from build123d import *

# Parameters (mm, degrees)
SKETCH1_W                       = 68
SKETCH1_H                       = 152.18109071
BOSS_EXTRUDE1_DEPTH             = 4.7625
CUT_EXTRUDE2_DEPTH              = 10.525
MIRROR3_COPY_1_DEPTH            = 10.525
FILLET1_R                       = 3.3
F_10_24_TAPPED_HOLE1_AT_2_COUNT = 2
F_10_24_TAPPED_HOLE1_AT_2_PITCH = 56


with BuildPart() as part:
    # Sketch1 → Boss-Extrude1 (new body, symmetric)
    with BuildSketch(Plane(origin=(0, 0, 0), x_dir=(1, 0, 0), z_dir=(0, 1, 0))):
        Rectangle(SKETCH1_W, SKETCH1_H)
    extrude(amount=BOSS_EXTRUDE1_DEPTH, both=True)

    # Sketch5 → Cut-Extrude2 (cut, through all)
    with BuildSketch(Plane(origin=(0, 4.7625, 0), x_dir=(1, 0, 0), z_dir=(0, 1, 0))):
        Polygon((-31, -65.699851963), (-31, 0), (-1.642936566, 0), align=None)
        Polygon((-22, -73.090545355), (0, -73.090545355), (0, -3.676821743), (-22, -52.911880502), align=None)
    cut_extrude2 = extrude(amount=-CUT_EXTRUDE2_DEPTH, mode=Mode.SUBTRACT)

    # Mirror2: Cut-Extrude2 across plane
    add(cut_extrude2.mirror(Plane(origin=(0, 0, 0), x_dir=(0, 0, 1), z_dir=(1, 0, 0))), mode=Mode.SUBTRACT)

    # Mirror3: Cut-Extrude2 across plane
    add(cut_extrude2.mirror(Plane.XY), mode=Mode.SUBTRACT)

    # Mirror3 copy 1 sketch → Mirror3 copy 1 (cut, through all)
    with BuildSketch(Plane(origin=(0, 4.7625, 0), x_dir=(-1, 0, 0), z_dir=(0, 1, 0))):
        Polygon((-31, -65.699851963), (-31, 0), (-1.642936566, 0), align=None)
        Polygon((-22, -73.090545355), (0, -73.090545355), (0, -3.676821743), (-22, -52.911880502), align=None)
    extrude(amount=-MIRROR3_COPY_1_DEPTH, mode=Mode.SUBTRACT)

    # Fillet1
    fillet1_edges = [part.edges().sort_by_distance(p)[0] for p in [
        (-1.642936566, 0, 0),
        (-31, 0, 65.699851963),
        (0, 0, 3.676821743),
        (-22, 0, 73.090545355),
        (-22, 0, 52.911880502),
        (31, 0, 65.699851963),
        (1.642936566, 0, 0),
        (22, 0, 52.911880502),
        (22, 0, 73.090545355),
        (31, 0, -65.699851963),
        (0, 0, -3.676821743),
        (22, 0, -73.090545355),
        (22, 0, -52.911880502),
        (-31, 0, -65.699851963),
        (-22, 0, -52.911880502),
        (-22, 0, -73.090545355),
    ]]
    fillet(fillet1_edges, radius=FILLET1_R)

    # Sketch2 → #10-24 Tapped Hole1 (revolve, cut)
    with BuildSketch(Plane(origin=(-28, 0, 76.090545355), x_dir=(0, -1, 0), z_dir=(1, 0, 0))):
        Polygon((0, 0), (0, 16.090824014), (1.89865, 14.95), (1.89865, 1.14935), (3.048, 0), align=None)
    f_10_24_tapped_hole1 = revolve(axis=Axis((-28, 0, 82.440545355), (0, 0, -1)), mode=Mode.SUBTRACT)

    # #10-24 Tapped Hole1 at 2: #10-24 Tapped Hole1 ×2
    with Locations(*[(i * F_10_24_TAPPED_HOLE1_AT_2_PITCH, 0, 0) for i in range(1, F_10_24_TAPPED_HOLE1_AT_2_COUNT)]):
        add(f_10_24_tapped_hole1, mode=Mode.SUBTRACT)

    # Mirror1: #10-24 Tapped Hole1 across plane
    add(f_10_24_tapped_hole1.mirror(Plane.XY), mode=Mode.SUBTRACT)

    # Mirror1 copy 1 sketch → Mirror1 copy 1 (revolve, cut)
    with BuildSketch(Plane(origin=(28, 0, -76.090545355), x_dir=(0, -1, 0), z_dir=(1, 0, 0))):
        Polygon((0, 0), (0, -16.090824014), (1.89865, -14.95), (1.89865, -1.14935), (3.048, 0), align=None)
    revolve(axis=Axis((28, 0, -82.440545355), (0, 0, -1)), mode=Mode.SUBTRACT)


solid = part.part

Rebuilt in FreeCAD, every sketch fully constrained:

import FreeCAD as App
import Part
import Sketcher
from FreeCAD import Vector
Q = App.Units.Quantity


def edges_at(feature, points):
    """Names of the edges that pass closest to the given points."""
    edges = feature.Shape.Edges
    near = lambda p: min(range(len(edges)), key=lambda i: edges[i].distToShape(Part.Vertex(*p))[0])
    return sorted({f"Edge{near(p) + 1}" for p in points})


def add_polygon(sketch, points):
    """Adds a closed chain of lines whose ends are joined by coincident constraints."""
    first, n = sketch.GeometryCount, len(points)
    for a, b in zip(points, points[1:] + points[:1]):
        sketch.addGeometry(Part.LineSegment(App.Vector(*a, 0), App.Vector(*b, 0)), False)
    for i in range(n):
        sketch.addConstraint(Sketcher.Constraint("Coincident", first + i, 2, first + (i + 1) % n, 1))

doc = App.newDocument("Part")
body = doc.addObject("PartDesign::Body", "Body")

sketch1 = body.newObject("Sketcher::SketchObject", "Sketch")
sketch1.AttachmentSupport = (doc.getObject("XZ_Plane"), [""])
sketch1.MapMode = "FlatFace"
add_polygon(sketch1, [(-34, -76), (-34, 76), (34, 76), (34, -76)])
sketch1.addConstraint([
    Sketcher.Constraint("Vertical", 0),
    Sketcher.Constraint("Horizontal", 1),
    Sketcher.Constraint("Vertical", 2),
    Sketcher.Constraint("Horizontal", 3),
    Sketcher.Constraint("Symmetric", 0, 2, 2, 2, -1, 1),
    Sketcher.Constraint("DistanceX", 1, 1, 1, 2, Q("68 mm")),
    Sketcher.Constraint("DistanceY", 0, 1, 0, 2, Q("152.181091 mm")),
])
pad1 = body.newObject("PartDesign::Pad", "Pad")
pad1.Profile = sketch1
pad1.Length = 9.525
pad1.Midplane = True

sketch2 = body.newObject("Sketcher::SketchObject", "Sketch001")
sketch2.AttachmentSupport = (doc.getObject("XZ_Plane"), [""])
sketch2.MapMode = "FlatFace"
sketch2.AttachmentOffset = App.Placement(Vector(0, 0, -4.7625), App.Rotation())
add_polygon(sketch2, [(-31, 0), (-31, 66), (-2, 0)])
add_polygon(sketch2, [(-22, 73), (0, 73), (0, 4), (-22, 53)])
sketch2.addConstraint([
    Sketcher.Constraint("Vertical", 0),
    Sketcher.Constraint("Horizontal", 2),
    Sketcher.Constraint("Horizontal", 3),
    Sketcher.Constraint("Vertical", 4),
    Sketcher.Constraint("Vertical", 6),
    Sketcher.Constraint("PointOnObject", 1, 2, -1),
    Sketcher.Constraint("PointOnObject", 3, 2, -2),
    Sketcher.Constraint("Parallel", 1, 5),
    Sketcher.Constraint("DistanceX", 3, 1, 3, 2, Q("22 mm")),
    Sketcher.Constraint("DistanceX", 0, 2, -1, 1, Q("31 mm")),
    Sketcher.Constraint("DistanceY", 0, 1, 0, 2, Q("65.699852 mm")),
    Sketcher.Constraint("Distance", 1, Q("71.960459 mm")),
    Sketcher.Constraint("DistanceY", 4, 2, 4, 1, Q("69.413724 mm")),
    Sketcher.Constraint("DistanceY", -1, 1, 4, 2, Q("3.676822 mm")),
])
pocket1 = body.newObject("PartDesign::Pocket", "Pocket")
pocket1.Profile = sketch2
pocket1.Type = "ThroughAll"
pocket1.Reversed = True
doc.recompute()

mirrored = body.newObject("PartDesign::Mirrored", "Mirrored")
mirrored.Originals = [pocket1]
mirrored.MirrorPlane = (doc.getObject("YZ_Plane"), [""])
body.Tip = mirrored
doc.recompute()

mirrored2 = body.newObject("PartDesign::Mirrored", "Mirrored001")
mirrored2.Originals = [pocket1]
mirrored2.MirrorPlane = (doc.getObject("XY_Plane"), [""])
body.Tip = mirrored2

sketch3 = body.newObject("Sketcher::SketchObject", "Sketch002")
sketch3.AttachmentSupport = (doc.getObject("XZ_Plane"), [""])
sketch3.MapMode = "FlatFace"
sketch3.AttachmentOffset = App.Placement(Vector(0, 0, -4.7625), App.Rotation())
add_polygon(sketch3, [(31, 0), (31, -66), (2, 0)])
add_polygon(sketch3, [(22, -73), (0, -73), (0, -4), (22, -53)])
sketch3.addConstraint([
    Sketcher.Constraint("Vertical", 0),
    Sketcher.Constraint("Horizontal", 2),
    Sketcher.Constraint("Horizontal", 3),
    Sketcher.Constraint("Vertical", 4),
    Sketcher.Constraint("Vertical", 6),
    Sketcher.Constraint("PointOnObject", 1, 2, -1),
    Sketcher.Constraint("PointOnObject", 3, 2, -2),
    Sketcher.Constraint("Parallel", 1, 5),
    Sketcher.Constraint("DistanceX", 3, 2, 3, 1, Q("22 mm")),
    Sketcher.Constraint("DistanceX", -1, 1, 0, 2, Q("31 mm")),
    Sketcher.Constraint("DistanceY", 0, 2, 0, 1, Q("65.699852 mm")),
    Sketcher.Constraint("Distance", 1, Q("71.960459 mm")),
    Sketcher.Constraint("DistanceY", 4, 1, 4, 2, Q("69.413724 mm")),
    Sketcher.Constraint("DistanceY", 4, 2, -1, 1, Q("3.676822 mm")),
])
pocket2 = body.newObject("PartDesign::Pocket", "Pocket001")
pocket2.Profile = sketch3
pocket2.Type = "ThroughAll"
pocket2.Reversed = True
doc.recompute()

fillet = body.newObject("PartDesign::Fillet", "Fillet")
fillet.Base = (pocket2, edges_at(pocket2, [
    (-1.643, 0, 0),
    (-31, 0, 65.7),
    (0, 0, 3.677),
    (-22, 0, 73.091),
    (-22, 0, 52.912),
    (31, 0, 65.7),
    (1.643, 0, 0),
    (22, 0, 52.912),
    (22, 0, 73.091),
    (31, 0, -65.7),
    (0, 0, -3.677),
    (22, 0, -73.091),
    (22, 0, -52.912),
    (-31, 0, -65.7),
    (-22, 0, -52.912),
    (-22, 0, -73.091),
]))
fillet.Radius = 3.3

sketch4 = body.newObject("Sketcher::SketchObject", "Sketch003")
sketch4.AttachmentSupport = (doc.getObject("YZ_Plane"), [""])
sketch4.MapMode = "FlatFace"
sketch4.AttachmentOffset = App.Placement(Vector(0, 0, -28), App.Rotation())
add_polygon(sketch4, [(0, 60), (0, 76.1), (-3, 76.1), (-1.9, 74.9), (-1.9, 61.1)])
sketch4.addConstraint([
    Sketcher.Constraint("Vertical", 0),
    Sketcher.Constraint("Horizontal", 1),
    Sketcher.Constraint("Vertical", 3),
    Sketcher.Constraint("PointOnObject", 0, 2, -2),
    Sketcher.Constraint("Angle", 2, Q("-45 deg")),
    Sketcher.Constraint("Angle", 4, Q("-31 deg")),
    Sketcher.Constraint("DistanceX", 1, 2, 1, 1, Q("3.048 mm")),
    Sketcher.Constraint("DistanceY", 3, 2, 1, 2, Q("14.95 mm")),
    Sketcher.Constraint("DistanceY", 3, 2, 3, 1, Q("13.80065 mm")),
    Sketcher.Constraint("DistanceY", -1, 1, 4, 2, Q("59.999721 mm")),
])
groove = body.newObject("PartDesign::Groove", "Groove")
groove.Profile = sketch4
groove.ReferenceAxis = (sketch4, ["V_Axis"])
groove.Angle = 360
doc.recompute()

linearpattern = body.newObject("PartDesign::LinearPattern", "LinearPattern")
linearpattern.Originals = [groove]
linearpattern.Direction = (doc.getObject("X_Axis"), [""])
linearpattern.Mode = "offset"
linearpattern.Offset = 56
linearpattern.Occurrences = 2
body.Tip = linearpattern
doc.recompute()

mirrored3 = body.newObject("PartDesign::Mirrored", "Mirrored002")
mirrored3.Originals = [groove]
mirrored3.MirrorPlane = (doc.getObject("XY_Plane"), [""])
body.Tip = mirrored3

sketch5 = body.newObject("Sketcher::SketchObject", "Sketch004")
sketch5.AttachmentSupport = (doc.getObject("YZ_Plane"), [""])
sketch5.MapMode = "FlatFace"
sketch5.AttachmentOffset = App.Placement(Vector(0, 0, 28), App.Rotation())
add_polygon(sketch5, [(0, -76.1), (0, -60), (-1.9, -61.1), (-1.9, -74.9), (-3, -76.1)])
sketch5.addConstraint([
    Sketcher.Constraint("Vertical", 0),
    Sketcher.Constraint("Vertical", 2),
    Sketcher.Constraint("Horizontal", 4),
    Sketcher.Constraint("PointOnObject", 0, 2, -2),
    Sketcher.Constraint("Angle", 1, Q("-149 deg")),
    Sketcher.Constraint("Angle", 3, Q("-135 deg")),
    Sketcher.Constraint("DistanceX", 4, 1, 4, 2, Q("3.048 mm")),
    Sketcher.Constraint("DistanceY", 3, 2, 1, 2, Q("14.95 mm")),
    Sketcher.Constraint("DistanceY", 2, 2, 2, 1, Q("13.80065 mm")),
    Sketcher.Constraint("DistanceY", 0, 2, -1, 1, Q("59.999721 mm")),
])
groove2 = body.newObject("PartDesign::Groove", "Groove001")
groove2.Profile = sketch5
groove2.ReferenceAxis = (sketch5, ["V_Axis"])
groove2.Angle = 360

doc.recompute()
